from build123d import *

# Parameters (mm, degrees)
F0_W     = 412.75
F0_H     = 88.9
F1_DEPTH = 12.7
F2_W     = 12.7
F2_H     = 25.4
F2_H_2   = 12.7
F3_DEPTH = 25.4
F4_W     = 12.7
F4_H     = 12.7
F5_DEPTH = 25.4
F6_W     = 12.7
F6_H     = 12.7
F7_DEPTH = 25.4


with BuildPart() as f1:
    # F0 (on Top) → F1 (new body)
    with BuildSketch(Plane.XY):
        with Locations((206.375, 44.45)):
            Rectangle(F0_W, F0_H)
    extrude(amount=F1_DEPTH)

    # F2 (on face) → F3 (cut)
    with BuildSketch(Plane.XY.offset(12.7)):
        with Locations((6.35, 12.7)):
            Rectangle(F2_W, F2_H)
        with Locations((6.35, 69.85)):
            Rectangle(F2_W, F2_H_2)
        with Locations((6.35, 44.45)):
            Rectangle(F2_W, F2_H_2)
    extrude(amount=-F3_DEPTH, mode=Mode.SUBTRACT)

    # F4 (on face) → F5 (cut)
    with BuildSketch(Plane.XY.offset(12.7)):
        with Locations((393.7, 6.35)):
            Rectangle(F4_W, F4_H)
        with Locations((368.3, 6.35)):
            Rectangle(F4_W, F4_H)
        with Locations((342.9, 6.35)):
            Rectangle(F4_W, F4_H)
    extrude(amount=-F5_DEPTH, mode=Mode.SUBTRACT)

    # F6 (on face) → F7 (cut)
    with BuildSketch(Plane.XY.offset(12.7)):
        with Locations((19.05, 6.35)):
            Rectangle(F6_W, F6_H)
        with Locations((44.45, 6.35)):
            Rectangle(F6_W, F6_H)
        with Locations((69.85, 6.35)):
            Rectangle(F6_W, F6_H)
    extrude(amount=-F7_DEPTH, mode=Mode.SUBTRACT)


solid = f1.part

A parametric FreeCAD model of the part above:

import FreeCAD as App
import Part
import Sketcher
Q = App.Units.Quantity

doc = App.newDocument("Part")
body = doc.addObject("PartDesign::Body", "Body")

# Sketch on XY plane
sketch1 = doc.addObject("Sketcher::SketchObject", "Sketch")
body.addObject(sketch1)
sketch1.AttachmentSupport = (doc.XY_Plane, [""])
sketch1.MapMode = "FlatFace"
sketch1.addGeometry([
    Part.LineSegment(App.Vector(0, 88.9, 0), App.Vector(0, 0, 0)),
    Part.LineSegment(App.Vector(0, 0, 0), App.Vector(412.75, 0, 0)),
    Part.LineSegment(App.Vector(412.75, 0, 0), App.Vector(412.75, 88.9, 0)),
    Part.LineSegment(App.Vector(412.75, 88.9, 0), App.Vector(0, 88.9, 0)),
], False)
sketch1.addConstraint([
    Sketcher.Constraint("Coincident", 0, 2, 1, 1),
    Sketcher.Constraint("Coincident", 1, 2, 2, 1),
    Sketcher.Constraint("Coincident", 2, 2, 3, 1),
    Sketcher.Constraint("Coincident", 3, 2, 0, 1),
    Sketcher.Constraint("Vertical", 0),
    Sketcher.Constraint("Horizontal", 1),
    Sketcher.Constraint("Vertical", 2),
    Sketcher.Constraint("Horizontal", 3),
    Sketcher.Constraint("Coincident", 0, 2, -1, 1),
    Sketcher.Constraint("DistanceY", 0, 2, 0, 1, Q("3.5 in")),
    Sketcher.Constraint("DistanceX", 1, 1, 1, 2, Q("16.25 in")),
])
pad1 = doc.addObject("PartDesign::Pad", "Pad")
body.addObject(pad1)
pad1.Profile = sketch1
pad1.Length = Q("0.5 in")

# Sketch on XY plane
sketch2 = doc.addObject("Sketcher::SketchObject", "Sketch001")
body.addObject(sketch2)
sketch2.AttachmentSupport = (doc.XY_Plane, [""])
sketch2.MapMode = "FlatFace"
sketch2.AttachmentOffset = App.Placement(App.Vector(0, 0, 0.5 * 25.4), App.Rotation())
sketch2.addGeometry([
    Part.LineSegment(App.Vector(0, 25.4, 0), App.Vector(0, 0, 0)),  # 0
    Part.LineSegment(App.Vector(0, 0, 0), App.Vector(12.7, 0, 0)),  # 1
    Part.LineSegment(App.Vector(12.7, 0, 0), App.Vector(12.7, 25.4, 0)),  # 2
    Part.LineSegment(App.Vector(12.7, 25.4, 0), App.Vector(0, 25.4, 0)),  # 3
    Part.LineSegment(App.Vector(0, 76.2, 0), App.Vector(0, 63.5, 0)),  # 4
    Part.LineSegment(App.Vector(0, 63.5, 0), App.Vector(12.7, 63.5, 0)),  # 5
    Part.LineSegment(App.Vector(12.7, 63.5, 0), App.Vector(12.7, 76.2, 0)),  # 6
    Part.LineSegment(App.Vector(12.7, 76.2, 0), App.Vector(0, 76.2, 0)),  # 7
    Part.LineSegment(App.Vector(0, 50.8, 0), App.Vector(0, 38.1, 0)),  # 8
    Part.LineSegment(App.Vector(0, 38.1, 0), App.Vector(12.7, 38.1, 0)),  # 9
    Part.LineSegment(App.Vector(12.7, 38.1, 0), App.Vector(12.7, 50.8, 0)),  # 10
    Part.LineSegment(App.Vector(12.7, 50.8, 0), App.Vector(0, 50.8, 0)),  # 11
], False)
sketch2.addConstraint([
    Sketcher.Constraint("Coincident", 0, 2, 1, 1),
    Sketcher.Constraint("Coincident", 1, 2, 2, 1),
    Sketcher.Constraint("Coincident", 2, 2, 3, 1),
    Sketcher.Constraint("Coincident", 3, 2, 0, 1),
    Sketcher.Constraint("Coincident", 4, 2, 5, 1),
    Sketcher.Constraint("Coincident", 5, 2, 6, 1),
    Sketcher.Constraint("Coincident", 6, 2, 7, 1),
    Sketcher.Constraint("Coincident", 7, 2, 4, 1),
    Sketcher.Constraint("Coincident", 8, 2, 9, 1),
    Sketcher.Constraint("Coincident", 9, 2, 10, 1),
    Sketcher.Constraint("Coincident", 10, 2, 11, 1),
    Sketcher.Constraint("Coincident", 11, 2, 8, 1),
    Sketcher.Constraint("Vertical", 0),
    Sketcher.Constraint("Horizontal", 1),
    Sketcher.Constraint("Vertical", 2),
    Sketcher.Constraint("Horizontal", 3),
    Sketcher.Constraint("Vertical", 4),
    Sketcher.Constraint("Horizontal", 5),
    Sketcher.Constraint("Vertical", 6),
    Sketcher.Constraint("Horizontal", 7),
    Sketcher.Constraint("Vertical", 8),
    Sketcher.Constraint("Horizontal", 9),
    Sketcher.Constraint("Vertical", 10),
    Sketcher.Constraint("Horizontal", 11),
    Sketcher.Constraint("Coincident", 0, 2, -1, 1),
    Sketcher.Constraint("PointOnObject", 4, 2, -2),
    Sketcher.Constraint("PointOnObject", 8, 2, -2),
    Sketcher.Constraint("Vertical", 2, 2, 5, 2),
    Sketcher.Constraint("Vertical", 6, 2, 9, 2),
    Sketcher.Constraint("Equal", 11, 4),
    Sketcher.Constraint("Equal", 6, 8),
    Sketcher.Constraint("DistanceY", 0, 2, 0, 1, Q("1 in")),
    Sketcher.Constraint("DistanceX", 1, 1, 1, 2, Q("0.5 in")),
    Sketcher.Constraint("DistanceY", -1, 1, 6, 2, Q("3 in")),
    Sketcher.Constraint("DistanceY", -1, 1, 10, 2, Q("2 in")),
])
pocket1 = doc.addObject("PartDesign::Pocket", "Pocket")
body.addObject(pocket1)
pocket1.Profile = sketch2
pocket1.Length = Q("1 in")

# Sketch on XY plane
sketch3 = doc.addObject("Sketcher::SketchObject", "Sketch002")
body.addObject(sketch3)
sketch3.AttachmentSupport = (doc.XY_Plane, [""])
sketch3.MapMode = "FlatFace"
sketch3.AttachmentOffset = App.Placement(App.Vector(0, 0, 0.5 * 25.4), App.Rotation())
sketch3.addGeometry([
    Part.LineSegment(App.Vector(387.35, 12.7, 0), App.Vector(387.35, 0, 0)),  # 0
    Part.LineSegment(App.Vector(387.35, 0, 0), App.Vector(400.05, 0, 0)),  # 1
    Part.LineSegment(App.Vector(400.05, 0, 0), App.Vector(400.05, 12.7, 0)),  # 2
    Part.LineSegment(App.Vector(400.05, 12.7, 0), App.Vector(387.35, 12.7, 0)),  # 3
    Part.LineSegment(App.Vector(361.95, 12.7, 0), App.Vector(361.95, 0, 0)),  # 4
    Part.LineSegment(App.Vector(361.95, 0, 0), App.Vector(374.65, 0, 0)),  # 5
    Part.LineSegment(App.Vector(374.65, 0, 0), App.Vector(374.65, 12.7, 0)),  # 6
    Part.LineSegment(App.Vector(374.65, 12.7, 0), App.Vector(361.95, 12.7, 0)),  # 7
    Part.LineSegment(App.Vector(336.55, 12.7, 0), App.Vector(336.55, 0, 0)),  # 8
    Part.LineSegment(App.Vector(336.55, 0, 0), App.Vector(349.25, 0, 0)),  # 9
    Part.LineSegment(App.Vector(349.25, 0, 0), App.Vector(349.25, 12.7, 0)),  # 10
    Part.LineSegment(App.Vector(349.25, 12.7, 0), App.Vector(336.55, 12.7, 0)),  # 11
], False)
sketch3.addConstraint([
    Sketcher.Constraint("Coincident", 0, 2, 1, 1),
    Sketcher.Constraint("Coincident", 1, 2, 2, 1),
    Sketcher.Constraint("Coincident", 2, 2, 3, 1),
    Sketcher.Constraint("Coincident", 3, 2, 0, 1),
    Sketcher.Constraint("Coincident", 4, 2, 5, 1),
    Sketcher.Constraint("Coincident", 5, 2, 6, 1),
    Sketcher.Constraint("Coincident", 6, 2, 7, 1),
    Sketcher.Constraint("Coincident", 7, 2, 4, 1),
    Sketcher.Constraint("Coincident", 8, 2, 9, 1),
    Sketcher.Constraint("Coincident", 9, 2, 10, 1),
    Sketcher.Constraint("Coincident", 10, 2, 11, 1),
    Sketcher.Constraint("Coincident", 11, 2, 8, 1),
    Sketcher.Constraint("Vertical", 0),
    Sketcher.Constraint("Horizontal", 1),
    Sketcher.Constraint("Vertical", 2),
    Sketcher.Constraint("Horizontal", 3),
    Sketcher.Constraint("Vertical", 4),
    Sketcher.Constraint("Horizontal", 5),
    Sketcher.Constraint("Vertical", 6),
    Sketcher.Constraint("Horizontal", 7),
    Sketcher.Constraint("Vertical", 8),
    Sketcher.Constraint("Horizontal", 9),
    Sketcher.Constraint("Vertical", 10),
    Sketcher.Constraint("Horizontal", 11),
    Sketcher.Constraint("PointOnObject", 0, 2, -1),
    Sketcher.Constraint("PointOnObject", 4, 2, -1),
    Sketcher.Constraint("PointOnObject", 8, 2, -1),
    Sketcher.Constraint("Horizontal", 3, 2, 6, 2),
    Sketcher.Constraint("Horizontal", 7, 2, 10, 2),
    Sketcher.Constraint("Equal", 3, 5),
    Sketcher.Constraint("Equal", 7, 9),
    Sketcher.Constraint("Equal", 11, 0),
    Sketcher.Constraint("DistanceX", 1, 1, 1, 2, Q("0.5 in")),
    Sketcher.Constraint("DistanceX", 4, 2, 0, 2, Q("1 in")),
    Sketcher.Constraint("DistanceX", 8, 2, 4, 2, Q("1 in")),
    Sketcher.Constraint("DistanceX", -1, 1, 0, 2, Q("15.25 in")),
])
pocket2 = doc.addObject("PartDesign::Pocket", "Pocket001")
body.addObject(pocket2)
pocket2.Profile = sketch3
pocket2.Length = Q("1 in")

# Sketch on XY plane
sketch4 = doc.addObject("Sketcher::SketchObject", "Sketch003")
body.addObject(sketch4)
sketch4.AttachmentSupport = (doc.XY_Plane, [""])
sketch4.MapMode = "FlatFace"
sketch4.AttachmentOffset = App.Placement(App.Vector(0, 0, 0.5 * 25.4), App.Rotation())
sketch4.addGeometry([
    Part.LineSegment(App.Vector(12.7, 12.7, 0), App.Vector(12.7, 0, 0)),  # 0
    Part.LineSegment(App.Vector(12.7, 0, 0), App.Vector(25.4, 0, 0)),  # 1
    Part.LineSegment(App.Vector(25.4, 0, 0), App.Vector(25.4, 12.7, 0)),  # 2
    Part.LineSegment(App.Vector(25.4, 12.7, 0), App.Vector(12.7, 12.7, 0)),  # 3
    Part.LineSegment(App.Vector(38.1, 12.7, 0), App.Vector(38.1, 0, 0)),  # 4
    Part.LineSegment(App.Vector(38.1, 0, 0), App.Vector(50.8, 0, 0)),  # 5
    Part.LineSegment(App.Vector(50.8, 0, 0), App.Vector(50.8, 12.7, 0)),  # 6
    Part.LineSegment(App.Vector(50.8, 12.7, 0), App.Vector(38.1, 12.7, 0)),  # 7
    Part.LineSegment(App.Vector(63.5, 12.7, 0), App.Vector(63.5, 0, 0)),  # 8
    Part.LineSegment(App.Vector(63.5, 0, 0), App.Vector(76.2, 0, 0)),  # 9
    Part.LineSegment(App.Vector(76.2, 0, 0), App.Vector(76.2, 12.7, 0)),  # 10
    Part.LineSegment(App.Vector(76.2, 12.7, 0), App.Vector(63.5, 12.7, 0)),  # 11
], False)
sketch4.addConstraint([
    Sketcher.Constraint("Coincident", 0, 2, 1, 1),
    Sketcher.Constraint("Coincident", 1, 2, 2, 1),
    Sketcher.Constraint("Coincident", 2, 2, 3, 1),
    Sketcher.Constraint("Coincident", 3, 2, 0, 1),
    Sketcher.Constraint("Coincident", 4, 2, 5, 1),
    Sketcher.Constraint("Coincident", 5, 2, 6, 1),
    Sketcher.Constraint("Coincident", 6, 2, 7, 1),
    Sketcher.Constraint("Coincident", 7, 2, 4, 1),
    Sketcher.Constraint("Coincident", 8, 2, 9, 1),
    Sketcher.Constraint("Coincident", 9, 2, 10, 1),
    Sketcher.Constraint("Coincident", 10, 2, 11, 1),
    Sketcher.Constraint("Coincident", 11, 2, 8, 1),
    Sketcher.Constraint("Vertical", 0),
    Sketcher.Constraint("Horizontal", 1),
    Sketcher.Constraint("Vertical", 2),
    Sketcher.Constraint("Horizontal", 3),
    Sketcher.Constraint("Vertical", 4),
    Sketcher.Constraint("Horizontal", 5),
    Sketcher.Constraint("Vertical", 6),
    Sketcher.Constraint("Horizontal", 7),
    Sketcher.Constraint("Vertical", 8),
    Sketcher.Constraint("Horizontal", 9),
    Sketcher.Constraint("Vertical", 10),
    Sketcher.Constraint("Horizontal", 11),
    Sketcher.Constraint("PointOnObject", 0, 2, -1),
    Sketcher.Constraint("PointOnObject", 4, 2, -1),
    Sketcher.Constraint("PointOnObject", 8, 2, -1),
    Sketcher.Constraint("Horizontal", 3, 2, 6, 2),
    Sketcher.Constraint("Horizontal", 7, 2, 10, 2),
    Sketcher.Constraint("Equal", 3, 5),
    Sketcher.Constraint("Equal", 7, 9),
    Sketcher.Constraint("Equal", 11, 0),
    Sketcher.Constraint("DistanceX", 1, 1, 1, 2, Q("0.5 in")),
    Sketcher.Constraint("DistanceX", -1, 1, 1, 2, Q("1 in")),
    Sketcher.Constraint("DistanceX", -1, 1, 5, 2, Q("2 in")),
    Sketcher.Constraint("DistanceX", -1, 1, 9, 2, Q("3 in")),
])
pocket3 = doc.addObject("PartDesign::Pocket", "Pocket002")
body.addObject(pocket3)
pocket3.Profile = sketch4
pocket3.Length = Q("1 in")

doc.recompute()
